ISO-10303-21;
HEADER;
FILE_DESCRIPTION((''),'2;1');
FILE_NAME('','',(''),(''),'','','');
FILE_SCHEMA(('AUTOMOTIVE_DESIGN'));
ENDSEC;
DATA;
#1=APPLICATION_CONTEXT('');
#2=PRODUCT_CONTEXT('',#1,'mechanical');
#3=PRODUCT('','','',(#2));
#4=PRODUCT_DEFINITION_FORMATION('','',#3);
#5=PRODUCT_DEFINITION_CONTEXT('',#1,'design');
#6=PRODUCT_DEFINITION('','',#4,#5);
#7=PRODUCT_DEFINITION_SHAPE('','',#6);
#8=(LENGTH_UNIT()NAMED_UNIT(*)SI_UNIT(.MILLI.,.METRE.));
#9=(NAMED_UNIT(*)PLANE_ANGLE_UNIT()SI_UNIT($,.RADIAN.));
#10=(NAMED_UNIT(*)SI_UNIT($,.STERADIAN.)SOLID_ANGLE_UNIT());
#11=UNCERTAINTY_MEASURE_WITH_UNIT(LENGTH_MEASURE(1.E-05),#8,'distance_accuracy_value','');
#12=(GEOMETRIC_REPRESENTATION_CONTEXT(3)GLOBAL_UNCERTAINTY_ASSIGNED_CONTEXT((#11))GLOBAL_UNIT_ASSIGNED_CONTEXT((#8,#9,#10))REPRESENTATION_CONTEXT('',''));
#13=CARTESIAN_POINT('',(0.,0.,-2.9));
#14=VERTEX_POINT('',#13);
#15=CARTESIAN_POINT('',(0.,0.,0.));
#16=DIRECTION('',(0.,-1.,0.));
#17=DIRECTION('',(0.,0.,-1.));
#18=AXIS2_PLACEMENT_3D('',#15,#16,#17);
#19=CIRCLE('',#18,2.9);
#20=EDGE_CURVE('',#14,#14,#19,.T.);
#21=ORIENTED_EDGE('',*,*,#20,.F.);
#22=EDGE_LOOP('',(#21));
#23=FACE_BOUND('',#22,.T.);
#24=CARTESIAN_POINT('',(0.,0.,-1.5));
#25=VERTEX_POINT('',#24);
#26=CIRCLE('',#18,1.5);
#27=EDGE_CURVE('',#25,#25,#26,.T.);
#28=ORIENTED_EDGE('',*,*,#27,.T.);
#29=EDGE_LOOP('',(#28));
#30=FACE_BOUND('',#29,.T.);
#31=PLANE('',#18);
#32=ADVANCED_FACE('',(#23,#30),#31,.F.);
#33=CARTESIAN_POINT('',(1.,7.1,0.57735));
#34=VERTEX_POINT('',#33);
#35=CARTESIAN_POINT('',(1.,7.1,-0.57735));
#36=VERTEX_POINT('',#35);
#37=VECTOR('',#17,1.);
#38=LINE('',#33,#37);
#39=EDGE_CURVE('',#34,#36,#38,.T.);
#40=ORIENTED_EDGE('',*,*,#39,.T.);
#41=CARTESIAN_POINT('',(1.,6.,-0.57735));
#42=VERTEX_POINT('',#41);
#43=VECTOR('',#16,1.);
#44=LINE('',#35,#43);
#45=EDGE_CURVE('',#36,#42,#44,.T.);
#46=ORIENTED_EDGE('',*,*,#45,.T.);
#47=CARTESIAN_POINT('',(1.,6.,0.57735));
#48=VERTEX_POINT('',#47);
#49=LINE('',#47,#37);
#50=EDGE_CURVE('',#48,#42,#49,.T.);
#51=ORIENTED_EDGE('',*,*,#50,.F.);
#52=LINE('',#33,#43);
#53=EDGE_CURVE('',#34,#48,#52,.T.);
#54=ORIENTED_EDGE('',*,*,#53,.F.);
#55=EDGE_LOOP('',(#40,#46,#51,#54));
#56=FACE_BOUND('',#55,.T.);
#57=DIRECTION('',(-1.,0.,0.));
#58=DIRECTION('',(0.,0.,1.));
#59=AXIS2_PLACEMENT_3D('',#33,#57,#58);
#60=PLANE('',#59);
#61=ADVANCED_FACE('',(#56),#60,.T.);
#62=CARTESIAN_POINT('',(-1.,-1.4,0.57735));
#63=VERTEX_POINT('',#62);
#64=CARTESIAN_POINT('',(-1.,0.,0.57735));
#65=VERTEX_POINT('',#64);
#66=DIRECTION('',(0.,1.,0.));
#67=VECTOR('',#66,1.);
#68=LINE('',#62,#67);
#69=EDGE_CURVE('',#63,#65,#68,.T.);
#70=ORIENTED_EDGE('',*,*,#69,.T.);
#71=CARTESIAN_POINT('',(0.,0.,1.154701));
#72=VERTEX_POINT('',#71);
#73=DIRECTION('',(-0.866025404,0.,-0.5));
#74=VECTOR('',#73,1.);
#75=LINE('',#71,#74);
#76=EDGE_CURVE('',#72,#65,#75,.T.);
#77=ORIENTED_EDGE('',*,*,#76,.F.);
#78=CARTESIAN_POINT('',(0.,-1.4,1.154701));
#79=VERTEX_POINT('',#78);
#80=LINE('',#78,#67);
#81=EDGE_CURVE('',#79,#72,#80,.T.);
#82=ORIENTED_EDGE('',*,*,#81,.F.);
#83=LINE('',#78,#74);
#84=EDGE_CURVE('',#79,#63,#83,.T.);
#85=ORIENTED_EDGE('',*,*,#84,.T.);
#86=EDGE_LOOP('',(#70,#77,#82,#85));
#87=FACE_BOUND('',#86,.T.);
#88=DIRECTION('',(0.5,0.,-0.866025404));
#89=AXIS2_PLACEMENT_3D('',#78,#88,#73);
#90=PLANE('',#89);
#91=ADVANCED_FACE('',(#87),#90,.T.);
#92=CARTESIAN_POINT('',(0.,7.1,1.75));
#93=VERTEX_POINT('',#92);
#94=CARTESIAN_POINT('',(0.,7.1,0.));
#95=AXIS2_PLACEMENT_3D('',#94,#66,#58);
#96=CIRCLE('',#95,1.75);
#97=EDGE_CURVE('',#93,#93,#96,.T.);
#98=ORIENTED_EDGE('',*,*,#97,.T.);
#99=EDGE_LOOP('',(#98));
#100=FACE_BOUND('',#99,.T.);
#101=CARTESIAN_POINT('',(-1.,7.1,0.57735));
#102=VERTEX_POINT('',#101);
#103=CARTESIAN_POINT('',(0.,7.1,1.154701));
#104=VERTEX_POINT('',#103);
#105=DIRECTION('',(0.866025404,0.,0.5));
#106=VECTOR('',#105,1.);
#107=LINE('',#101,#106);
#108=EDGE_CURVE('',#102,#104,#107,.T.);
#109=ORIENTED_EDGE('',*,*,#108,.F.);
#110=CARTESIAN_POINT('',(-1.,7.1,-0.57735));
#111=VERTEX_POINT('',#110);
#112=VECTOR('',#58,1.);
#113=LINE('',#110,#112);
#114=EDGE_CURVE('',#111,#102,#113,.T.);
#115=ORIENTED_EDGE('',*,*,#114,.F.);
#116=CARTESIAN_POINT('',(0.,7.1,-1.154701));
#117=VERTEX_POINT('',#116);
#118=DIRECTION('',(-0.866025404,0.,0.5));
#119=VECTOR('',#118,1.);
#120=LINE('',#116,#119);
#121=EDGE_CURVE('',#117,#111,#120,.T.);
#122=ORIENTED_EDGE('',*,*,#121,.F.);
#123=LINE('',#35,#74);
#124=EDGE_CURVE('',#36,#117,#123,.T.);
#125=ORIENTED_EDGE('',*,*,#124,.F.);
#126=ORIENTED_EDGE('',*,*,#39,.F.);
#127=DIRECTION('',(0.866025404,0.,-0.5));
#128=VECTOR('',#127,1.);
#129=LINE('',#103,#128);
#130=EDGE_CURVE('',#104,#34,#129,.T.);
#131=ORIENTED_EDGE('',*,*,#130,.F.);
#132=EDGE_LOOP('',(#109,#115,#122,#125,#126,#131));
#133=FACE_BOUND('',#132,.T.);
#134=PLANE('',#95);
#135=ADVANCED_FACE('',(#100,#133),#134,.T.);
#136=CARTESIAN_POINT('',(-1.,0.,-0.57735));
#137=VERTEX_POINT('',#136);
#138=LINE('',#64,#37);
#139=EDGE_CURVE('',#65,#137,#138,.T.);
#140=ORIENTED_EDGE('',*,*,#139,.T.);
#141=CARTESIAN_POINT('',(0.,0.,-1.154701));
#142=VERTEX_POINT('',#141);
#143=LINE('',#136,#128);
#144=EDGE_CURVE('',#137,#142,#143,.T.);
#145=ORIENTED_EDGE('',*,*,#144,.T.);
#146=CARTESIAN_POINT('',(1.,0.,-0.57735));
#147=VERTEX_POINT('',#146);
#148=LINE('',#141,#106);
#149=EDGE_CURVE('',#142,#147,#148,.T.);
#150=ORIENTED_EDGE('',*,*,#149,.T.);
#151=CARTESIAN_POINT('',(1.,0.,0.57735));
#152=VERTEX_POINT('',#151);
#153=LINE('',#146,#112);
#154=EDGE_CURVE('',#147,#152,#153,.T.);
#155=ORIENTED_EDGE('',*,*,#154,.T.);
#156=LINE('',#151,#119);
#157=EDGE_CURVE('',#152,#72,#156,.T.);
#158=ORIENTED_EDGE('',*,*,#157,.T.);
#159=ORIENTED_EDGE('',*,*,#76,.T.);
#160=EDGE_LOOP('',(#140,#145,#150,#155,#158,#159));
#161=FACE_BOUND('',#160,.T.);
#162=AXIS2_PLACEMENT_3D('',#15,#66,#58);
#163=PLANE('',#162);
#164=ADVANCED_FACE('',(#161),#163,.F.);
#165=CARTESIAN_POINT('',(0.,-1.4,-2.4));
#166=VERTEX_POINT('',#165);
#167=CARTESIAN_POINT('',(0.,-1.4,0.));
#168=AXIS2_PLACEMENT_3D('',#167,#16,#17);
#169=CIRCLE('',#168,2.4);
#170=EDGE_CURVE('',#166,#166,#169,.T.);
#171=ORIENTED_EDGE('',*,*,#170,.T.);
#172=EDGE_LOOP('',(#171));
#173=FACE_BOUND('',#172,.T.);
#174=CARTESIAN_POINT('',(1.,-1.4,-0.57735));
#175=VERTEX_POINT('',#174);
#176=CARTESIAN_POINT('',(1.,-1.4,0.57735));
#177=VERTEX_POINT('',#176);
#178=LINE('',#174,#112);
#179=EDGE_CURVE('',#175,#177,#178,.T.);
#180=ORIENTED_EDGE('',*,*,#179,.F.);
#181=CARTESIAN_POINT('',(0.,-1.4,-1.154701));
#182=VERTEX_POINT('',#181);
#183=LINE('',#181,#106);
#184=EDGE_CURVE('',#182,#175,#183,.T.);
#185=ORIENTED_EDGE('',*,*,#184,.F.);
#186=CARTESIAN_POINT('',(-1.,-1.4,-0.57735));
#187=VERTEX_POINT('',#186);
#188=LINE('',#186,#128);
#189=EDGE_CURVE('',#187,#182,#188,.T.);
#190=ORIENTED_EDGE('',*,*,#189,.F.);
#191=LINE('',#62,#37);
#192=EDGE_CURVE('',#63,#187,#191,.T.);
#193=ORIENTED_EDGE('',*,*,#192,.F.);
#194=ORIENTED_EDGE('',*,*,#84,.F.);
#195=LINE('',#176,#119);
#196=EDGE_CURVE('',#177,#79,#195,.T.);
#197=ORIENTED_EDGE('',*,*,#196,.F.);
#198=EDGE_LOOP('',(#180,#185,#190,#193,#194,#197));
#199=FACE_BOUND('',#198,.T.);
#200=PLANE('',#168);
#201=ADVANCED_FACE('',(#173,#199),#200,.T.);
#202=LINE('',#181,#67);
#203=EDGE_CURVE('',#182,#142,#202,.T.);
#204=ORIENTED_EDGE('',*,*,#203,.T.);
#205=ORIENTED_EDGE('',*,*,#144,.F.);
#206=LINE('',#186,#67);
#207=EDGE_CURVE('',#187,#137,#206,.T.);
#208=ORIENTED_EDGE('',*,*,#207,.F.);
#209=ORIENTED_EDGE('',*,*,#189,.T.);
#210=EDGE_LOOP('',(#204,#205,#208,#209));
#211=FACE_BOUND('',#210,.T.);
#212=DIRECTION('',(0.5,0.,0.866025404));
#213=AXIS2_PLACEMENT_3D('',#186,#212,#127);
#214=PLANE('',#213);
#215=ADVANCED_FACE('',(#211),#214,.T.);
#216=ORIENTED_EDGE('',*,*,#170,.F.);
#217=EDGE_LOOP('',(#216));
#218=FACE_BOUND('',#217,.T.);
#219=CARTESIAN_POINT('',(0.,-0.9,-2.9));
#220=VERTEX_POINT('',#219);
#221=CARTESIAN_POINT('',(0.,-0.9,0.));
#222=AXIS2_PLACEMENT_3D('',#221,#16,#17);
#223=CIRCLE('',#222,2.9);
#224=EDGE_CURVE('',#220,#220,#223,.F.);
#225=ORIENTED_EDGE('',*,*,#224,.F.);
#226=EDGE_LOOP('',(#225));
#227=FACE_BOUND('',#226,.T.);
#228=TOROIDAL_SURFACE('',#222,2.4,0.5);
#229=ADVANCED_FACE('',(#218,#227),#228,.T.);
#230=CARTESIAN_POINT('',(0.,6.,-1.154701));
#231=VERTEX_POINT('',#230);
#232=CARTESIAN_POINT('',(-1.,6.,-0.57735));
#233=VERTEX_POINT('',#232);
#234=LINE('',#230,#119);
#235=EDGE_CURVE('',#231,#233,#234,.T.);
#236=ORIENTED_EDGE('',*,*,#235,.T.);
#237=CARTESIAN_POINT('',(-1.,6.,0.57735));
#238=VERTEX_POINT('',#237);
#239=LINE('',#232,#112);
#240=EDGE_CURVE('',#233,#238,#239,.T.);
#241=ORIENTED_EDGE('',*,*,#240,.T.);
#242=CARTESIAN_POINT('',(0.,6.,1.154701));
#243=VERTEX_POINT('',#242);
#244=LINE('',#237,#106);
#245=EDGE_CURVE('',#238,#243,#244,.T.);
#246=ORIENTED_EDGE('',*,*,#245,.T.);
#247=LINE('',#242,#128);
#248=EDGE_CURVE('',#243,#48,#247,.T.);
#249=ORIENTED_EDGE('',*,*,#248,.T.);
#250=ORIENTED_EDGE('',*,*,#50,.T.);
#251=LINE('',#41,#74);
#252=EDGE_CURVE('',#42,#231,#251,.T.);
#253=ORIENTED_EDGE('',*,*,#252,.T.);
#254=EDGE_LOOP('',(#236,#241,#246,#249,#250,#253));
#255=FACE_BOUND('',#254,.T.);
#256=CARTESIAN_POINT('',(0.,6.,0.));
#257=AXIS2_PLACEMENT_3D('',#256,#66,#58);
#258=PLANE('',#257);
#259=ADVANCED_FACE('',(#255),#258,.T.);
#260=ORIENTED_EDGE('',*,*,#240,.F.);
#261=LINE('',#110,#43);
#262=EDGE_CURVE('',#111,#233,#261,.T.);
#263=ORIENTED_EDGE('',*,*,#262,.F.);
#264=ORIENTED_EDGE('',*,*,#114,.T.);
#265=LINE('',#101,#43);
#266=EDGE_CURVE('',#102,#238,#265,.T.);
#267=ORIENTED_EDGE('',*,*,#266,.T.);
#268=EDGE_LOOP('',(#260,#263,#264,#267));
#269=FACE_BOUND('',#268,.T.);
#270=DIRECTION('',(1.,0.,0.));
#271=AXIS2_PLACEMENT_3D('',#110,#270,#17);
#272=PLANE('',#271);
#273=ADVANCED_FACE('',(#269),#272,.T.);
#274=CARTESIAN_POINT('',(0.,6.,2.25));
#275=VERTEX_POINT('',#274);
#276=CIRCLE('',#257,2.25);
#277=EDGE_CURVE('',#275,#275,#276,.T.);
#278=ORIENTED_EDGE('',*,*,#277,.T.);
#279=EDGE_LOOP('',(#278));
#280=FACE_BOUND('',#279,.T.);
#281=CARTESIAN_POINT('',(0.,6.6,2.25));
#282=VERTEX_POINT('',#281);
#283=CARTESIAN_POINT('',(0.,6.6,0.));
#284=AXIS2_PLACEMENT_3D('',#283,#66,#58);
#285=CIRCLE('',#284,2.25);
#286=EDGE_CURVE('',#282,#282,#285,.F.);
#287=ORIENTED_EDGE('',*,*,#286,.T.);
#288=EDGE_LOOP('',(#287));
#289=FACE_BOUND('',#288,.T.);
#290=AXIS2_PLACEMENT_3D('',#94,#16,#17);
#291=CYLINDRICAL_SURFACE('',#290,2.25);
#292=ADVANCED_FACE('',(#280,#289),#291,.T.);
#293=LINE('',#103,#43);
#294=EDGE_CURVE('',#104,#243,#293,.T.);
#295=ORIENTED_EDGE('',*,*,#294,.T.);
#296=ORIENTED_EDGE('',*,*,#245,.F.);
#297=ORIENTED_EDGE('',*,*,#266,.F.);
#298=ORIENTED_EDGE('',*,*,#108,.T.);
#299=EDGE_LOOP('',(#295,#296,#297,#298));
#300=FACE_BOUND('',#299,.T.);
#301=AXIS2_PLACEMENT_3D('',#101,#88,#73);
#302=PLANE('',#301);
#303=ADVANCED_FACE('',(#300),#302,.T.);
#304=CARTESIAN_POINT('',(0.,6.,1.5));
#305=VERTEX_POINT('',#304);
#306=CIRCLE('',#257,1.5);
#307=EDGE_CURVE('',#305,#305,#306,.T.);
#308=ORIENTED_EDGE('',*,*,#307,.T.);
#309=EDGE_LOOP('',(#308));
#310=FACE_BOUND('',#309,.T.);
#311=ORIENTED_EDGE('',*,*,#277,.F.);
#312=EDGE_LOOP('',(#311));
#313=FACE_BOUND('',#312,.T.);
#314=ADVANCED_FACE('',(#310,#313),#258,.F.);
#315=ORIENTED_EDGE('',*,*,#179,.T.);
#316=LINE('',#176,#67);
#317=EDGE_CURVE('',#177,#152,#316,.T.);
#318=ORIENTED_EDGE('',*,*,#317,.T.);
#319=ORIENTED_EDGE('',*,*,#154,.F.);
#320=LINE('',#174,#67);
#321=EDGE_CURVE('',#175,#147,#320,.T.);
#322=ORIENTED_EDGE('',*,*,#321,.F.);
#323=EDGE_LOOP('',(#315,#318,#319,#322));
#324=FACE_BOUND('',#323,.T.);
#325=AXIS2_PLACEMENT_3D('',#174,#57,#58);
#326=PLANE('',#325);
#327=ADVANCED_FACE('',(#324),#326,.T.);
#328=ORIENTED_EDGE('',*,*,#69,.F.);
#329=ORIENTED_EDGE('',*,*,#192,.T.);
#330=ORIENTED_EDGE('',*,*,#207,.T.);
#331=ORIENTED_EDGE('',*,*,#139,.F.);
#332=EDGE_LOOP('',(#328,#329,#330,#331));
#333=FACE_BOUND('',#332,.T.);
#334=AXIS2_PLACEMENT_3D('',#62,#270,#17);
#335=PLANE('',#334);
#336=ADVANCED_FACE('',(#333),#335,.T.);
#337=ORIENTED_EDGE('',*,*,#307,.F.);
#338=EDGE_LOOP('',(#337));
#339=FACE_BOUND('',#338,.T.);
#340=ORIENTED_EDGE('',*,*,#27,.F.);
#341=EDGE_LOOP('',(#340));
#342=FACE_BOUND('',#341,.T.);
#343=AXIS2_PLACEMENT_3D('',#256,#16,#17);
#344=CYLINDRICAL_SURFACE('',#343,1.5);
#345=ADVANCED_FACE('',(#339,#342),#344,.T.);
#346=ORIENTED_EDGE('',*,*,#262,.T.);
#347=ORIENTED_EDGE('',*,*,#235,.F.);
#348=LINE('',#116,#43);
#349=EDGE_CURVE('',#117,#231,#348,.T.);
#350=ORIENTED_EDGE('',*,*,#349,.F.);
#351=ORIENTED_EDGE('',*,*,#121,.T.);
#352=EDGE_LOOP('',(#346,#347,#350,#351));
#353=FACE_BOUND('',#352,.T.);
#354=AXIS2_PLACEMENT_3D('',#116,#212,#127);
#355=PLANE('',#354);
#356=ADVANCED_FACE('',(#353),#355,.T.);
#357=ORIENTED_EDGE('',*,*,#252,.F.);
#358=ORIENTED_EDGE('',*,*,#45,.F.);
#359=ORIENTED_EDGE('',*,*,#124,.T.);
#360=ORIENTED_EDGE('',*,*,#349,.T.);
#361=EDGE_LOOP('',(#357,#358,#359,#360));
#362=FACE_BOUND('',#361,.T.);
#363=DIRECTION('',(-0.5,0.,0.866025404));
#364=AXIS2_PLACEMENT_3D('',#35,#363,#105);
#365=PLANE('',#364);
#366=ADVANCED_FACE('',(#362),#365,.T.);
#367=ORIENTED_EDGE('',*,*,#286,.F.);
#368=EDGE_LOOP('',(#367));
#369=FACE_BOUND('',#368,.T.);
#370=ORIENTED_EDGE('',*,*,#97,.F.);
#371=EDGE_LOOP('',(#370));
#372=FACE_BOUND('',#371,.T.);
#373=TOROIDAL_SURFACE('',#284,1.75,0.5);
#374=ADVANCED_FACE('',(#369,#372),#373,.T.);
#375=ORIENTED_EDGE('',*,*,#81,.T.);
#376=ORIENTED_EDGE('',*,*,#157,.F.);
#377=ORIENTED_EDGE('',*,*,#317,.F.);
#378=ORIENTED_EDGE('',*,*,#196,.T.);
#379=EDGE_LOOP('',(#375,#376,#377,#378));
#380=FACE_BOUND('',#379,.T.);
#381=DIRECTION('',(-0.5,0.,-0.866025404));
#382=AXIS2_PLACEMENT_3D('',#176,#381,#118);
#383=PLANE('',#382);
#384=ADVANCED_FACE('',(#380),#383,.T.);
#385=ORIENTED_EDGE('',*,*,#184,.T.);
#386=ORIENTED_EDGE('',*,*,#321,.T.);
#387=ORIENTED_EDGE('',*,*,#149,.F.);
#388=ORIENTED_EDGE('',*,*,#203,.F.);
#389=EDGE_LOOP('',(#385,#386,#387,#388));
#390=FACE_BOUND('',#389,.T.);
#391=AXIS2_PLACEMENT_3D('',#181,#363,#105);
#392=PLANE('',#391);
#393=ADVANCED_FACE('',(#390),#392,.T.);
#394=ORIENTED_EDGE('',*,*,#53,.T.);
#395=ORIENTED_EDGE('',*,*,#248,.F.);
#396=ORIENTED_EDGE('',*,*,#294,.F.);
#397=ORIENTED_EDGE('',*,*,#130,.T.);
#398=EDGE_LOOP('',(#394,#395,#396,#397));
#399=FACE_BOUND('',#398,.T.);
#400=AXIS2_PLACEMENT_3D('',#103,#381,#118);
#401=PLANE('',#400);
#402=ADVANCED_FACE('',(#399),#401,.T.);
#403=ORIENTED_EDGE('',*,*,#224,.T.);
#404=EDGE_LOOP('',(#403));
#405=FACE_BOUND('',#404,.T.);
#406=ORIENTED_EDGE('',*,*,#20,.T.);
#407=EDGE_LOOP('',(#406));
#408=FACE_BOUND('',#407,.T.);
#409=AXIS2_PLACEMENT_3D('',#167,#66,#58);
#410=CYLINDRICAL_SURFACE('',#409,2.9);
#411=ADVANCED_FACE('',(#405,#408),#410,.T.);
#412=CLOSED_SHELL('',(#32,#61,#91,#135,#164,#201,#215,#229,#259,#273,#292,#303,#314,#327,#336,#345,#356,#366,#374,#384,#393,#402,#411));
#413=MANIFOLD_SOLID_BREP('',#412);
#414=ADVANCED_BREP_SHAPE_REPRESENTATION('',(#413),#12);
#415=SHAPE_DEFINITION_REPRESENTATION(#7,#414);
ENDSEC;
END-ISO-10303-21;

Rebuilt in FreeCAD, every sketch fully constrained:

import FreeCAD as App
import Part
import Sketcher
from FreeCAD import Vector
Q = App.Units.Quantity


def edges_at(feature, points):
    """Names of the edges that pass closest to the given points."""
    edges = feature.Shape.Edges
    near = lambda p: min(range(len(edges)), key=lambda i: edges[i].distToShape(Part.Vertex(*p))[0])
    return sorted({f"Edge{near(p) + 1}" for p in points})

doc = App.newDocument("Part")
body = doc.addObject("PartDesign::Body", "Body")

sketch1 = body.newObject("Sketcher::SketchObject", "Sketch")
sketch1.AttachmentSupport = (doc.getObject("XZ_Plane"), [""])
sketch1.MapMode = "FlatFace"
sketch1.addGeometry(Part.Circle(Vector(0, 0, 0), Vector(0, 0, 1), 1.5), False)
sketch1.addConstraint([
    Sketcher.Constraint("Coincident", 0, 3, -1, 1),
    Sketcher.Constraint("Diameter", 0, Q("3 mm")),
])
pad1 = body.newObject("PartDesign::Pad", "Pad")
pad1.Profile = sketch1
pad1.Length = 6
pad1.Reversed = True

sketch2 = body.newObject("Sketcher::SketchObject", "Sketch001")
sketch2.AttachmentSupport = (doc.getObject("XZ_Plane"), [""])
sketch2.MapMode = "FlatFace"
sketch2.AttachmentOffset = App.Placement(Vector(0, 0, -6), App.Rotation())
sketch2.addGeometry([
    Part.Circle(Vector(0, 0, 0), Vector(0, 0, 1), 2.2),
    Part.LineSegment(Vector(-1, -0.6, 0), Vector(0, -1.2, 0)),
    Part.LineSegment(Vector(0, -1.2, 0), Vector(1, -0.6, 0)),
    Part.LineSegment(Vector(1, -0.6, 0), Vector(1, 0.6, 0)),
    Part.LineSegment(Vector(1, 0.6, 0), Vector(0, 1.2, 0)),
    Part.LineSegment(Vector(0, 1.2, 0), Vector(-1, 0.6, 0)),
    Part.LineSegment(Vector(-1, 0.6, 0), Vector(-1, -0.6, 0)),
], False)
sketch2.addConstraint([
    Sketcher.Constraint("Coincident", 1, 2, 2, 1),
    Sketcher.Constraint("Coincident", 2, 2, 3, 1),
    Sketcher.Constraint("Coincident", 3, 2, 4, 1),
    Sketcher.Constraint("Coincident", 4, 2, 5, 1),
    Sketcher.Constraint("Coincident", 5, 2, 6, 1),
    Sketcher.Constraint("Coincident", 6, 2, 1, 1),
    Sketcher.Constraint("Vertical", 3),
    Sketcher.Constraint("Vertical", 6),
    Sketcher.Constraint("Coincident", 0, 3, -1, 1),
    Sketcher.Constraint("Symmetric", 1, 2, 4, 2, -1, 1),
    Sketcher.Constraint("Symmetric", 2, 2, 5, 2, -1, 1),
    Sketcher.Constraint("PointOnObject", 1, 2, -2),
    Sketcher.Constraint("Parallel", 1, 4),
    Sketcher.Constraint("Horizontal", 3, 2, 5, 2),
    Sketcher.Constraint("Diameter", 0, Q("4.5 mm")),
    Sketcher.Constraint("Angle", 1, Q("-30 deg")),
    Sketcher.Constraint("DistanceX", -1, 1, 2, 2, Q("1 mm")),
    Sketcher.Constraint("DistanceY", 3, 1, 3, 2, Q("1.154701 mm")),
])
pad2 = body.newObject("PartDesign::Pad", "Pad001")
pad2.Profile = sketch2
pad2.Length = 1.1
pad2.Reversed = True

sketch3 = body.newObject("Sketcher::SketchObject", "Sketch002")
sketch3.AttachmentSupport = (doc.getObject("XZ_Plane"), [""])
sketch3.MapMode = "FlatFace"
sketch3.addGeometry([
    Part.Circle(Vector(0, 0, 0), Vector(0, 0, 1), 2.9),
    Part.LineSegment(Vector(-1, 0.6, 0), Vector(0, 1.2, 0)),
    Part.LineSegment(Vector(0, 1.2, 0), Vector(1, 0.6, 0)),
    Part.LineSegment(Vector(1, 0.6, 0), Vector(1, -0.6, 0)),
    Part.LineSegment(Vector(1, -0.6, 0), Vector(0, -1.2, 0)),
    Part.LineSegment(Vector(0, -1.2, 0), Vector(-1, -0.6, 0)),
    Part.LineSegment(Vector(-1, -0.6, 0), Vector(-1, 0.6, 0)),
], False)
sketch3.addConstraint([
    Sketcher.Constraint("Coincident", 1, 2, 2, 1),
    Sketcher.Constraint("Coincident", 2, 2, 3, 1),
    Sketcher.Constraint("Coincident", 3, 2, 4, 1),
    Sketcher.Constraint("Coincident", 4, 2, 5, 1),
    Sketcher.Constraint("Coincident", 5, 2, 6, 1),
    Sketcher.Constraint("Coincident", 6, 2, 1, 1),
    Sketcher.Constraint("Vertical", 3),
    Sketcher.Constraint("Vertical", 6),
    Sketcher.Constraint("Coincident", 0, 3, -1, 1),
    Sketcher.Constraint("Symmetric", 1, 2, 4, 2, -1, 1),
    Sketcher.Constraint("Symmetric", 2, 2, 5, 2, -1, 1),
    Sketcher.Constraint("PointOnObject", 1, 2, -2),
    Sketcher.Constraint("Parallel", 1, 4),
    Sketcher.Constraint("Horizontal", 3, 2, 5, 2),
    Sketcher.Constraint("Diameter", 0, Q("5.8 mm")),
    Sketcher.Constraint("Angle", 1, Q("30 deg")),
    Sketcher.Constraint("DistanceX", -1, 1, 2, 2, Q("1 mm")),
    Sketcher.Constraint("DistanceY", 3, 2, 3, 1, Q("1.154701 mm")),
])
pad3 = body.newObject("PartDesign::Pad", "Pad002")
pad3.Profile = sketch3
pad3.Length = 1.4
doc.recompute()

fillet = body.newObject("PartDesign::Fillet", "Fillet")
fillet.Base = (pad3, edges_at(pad3, [(0, 7.1, -2.25), (0, -1.4, 2.9)]))
fillet.Radius = 0.5

doc.recompute()
